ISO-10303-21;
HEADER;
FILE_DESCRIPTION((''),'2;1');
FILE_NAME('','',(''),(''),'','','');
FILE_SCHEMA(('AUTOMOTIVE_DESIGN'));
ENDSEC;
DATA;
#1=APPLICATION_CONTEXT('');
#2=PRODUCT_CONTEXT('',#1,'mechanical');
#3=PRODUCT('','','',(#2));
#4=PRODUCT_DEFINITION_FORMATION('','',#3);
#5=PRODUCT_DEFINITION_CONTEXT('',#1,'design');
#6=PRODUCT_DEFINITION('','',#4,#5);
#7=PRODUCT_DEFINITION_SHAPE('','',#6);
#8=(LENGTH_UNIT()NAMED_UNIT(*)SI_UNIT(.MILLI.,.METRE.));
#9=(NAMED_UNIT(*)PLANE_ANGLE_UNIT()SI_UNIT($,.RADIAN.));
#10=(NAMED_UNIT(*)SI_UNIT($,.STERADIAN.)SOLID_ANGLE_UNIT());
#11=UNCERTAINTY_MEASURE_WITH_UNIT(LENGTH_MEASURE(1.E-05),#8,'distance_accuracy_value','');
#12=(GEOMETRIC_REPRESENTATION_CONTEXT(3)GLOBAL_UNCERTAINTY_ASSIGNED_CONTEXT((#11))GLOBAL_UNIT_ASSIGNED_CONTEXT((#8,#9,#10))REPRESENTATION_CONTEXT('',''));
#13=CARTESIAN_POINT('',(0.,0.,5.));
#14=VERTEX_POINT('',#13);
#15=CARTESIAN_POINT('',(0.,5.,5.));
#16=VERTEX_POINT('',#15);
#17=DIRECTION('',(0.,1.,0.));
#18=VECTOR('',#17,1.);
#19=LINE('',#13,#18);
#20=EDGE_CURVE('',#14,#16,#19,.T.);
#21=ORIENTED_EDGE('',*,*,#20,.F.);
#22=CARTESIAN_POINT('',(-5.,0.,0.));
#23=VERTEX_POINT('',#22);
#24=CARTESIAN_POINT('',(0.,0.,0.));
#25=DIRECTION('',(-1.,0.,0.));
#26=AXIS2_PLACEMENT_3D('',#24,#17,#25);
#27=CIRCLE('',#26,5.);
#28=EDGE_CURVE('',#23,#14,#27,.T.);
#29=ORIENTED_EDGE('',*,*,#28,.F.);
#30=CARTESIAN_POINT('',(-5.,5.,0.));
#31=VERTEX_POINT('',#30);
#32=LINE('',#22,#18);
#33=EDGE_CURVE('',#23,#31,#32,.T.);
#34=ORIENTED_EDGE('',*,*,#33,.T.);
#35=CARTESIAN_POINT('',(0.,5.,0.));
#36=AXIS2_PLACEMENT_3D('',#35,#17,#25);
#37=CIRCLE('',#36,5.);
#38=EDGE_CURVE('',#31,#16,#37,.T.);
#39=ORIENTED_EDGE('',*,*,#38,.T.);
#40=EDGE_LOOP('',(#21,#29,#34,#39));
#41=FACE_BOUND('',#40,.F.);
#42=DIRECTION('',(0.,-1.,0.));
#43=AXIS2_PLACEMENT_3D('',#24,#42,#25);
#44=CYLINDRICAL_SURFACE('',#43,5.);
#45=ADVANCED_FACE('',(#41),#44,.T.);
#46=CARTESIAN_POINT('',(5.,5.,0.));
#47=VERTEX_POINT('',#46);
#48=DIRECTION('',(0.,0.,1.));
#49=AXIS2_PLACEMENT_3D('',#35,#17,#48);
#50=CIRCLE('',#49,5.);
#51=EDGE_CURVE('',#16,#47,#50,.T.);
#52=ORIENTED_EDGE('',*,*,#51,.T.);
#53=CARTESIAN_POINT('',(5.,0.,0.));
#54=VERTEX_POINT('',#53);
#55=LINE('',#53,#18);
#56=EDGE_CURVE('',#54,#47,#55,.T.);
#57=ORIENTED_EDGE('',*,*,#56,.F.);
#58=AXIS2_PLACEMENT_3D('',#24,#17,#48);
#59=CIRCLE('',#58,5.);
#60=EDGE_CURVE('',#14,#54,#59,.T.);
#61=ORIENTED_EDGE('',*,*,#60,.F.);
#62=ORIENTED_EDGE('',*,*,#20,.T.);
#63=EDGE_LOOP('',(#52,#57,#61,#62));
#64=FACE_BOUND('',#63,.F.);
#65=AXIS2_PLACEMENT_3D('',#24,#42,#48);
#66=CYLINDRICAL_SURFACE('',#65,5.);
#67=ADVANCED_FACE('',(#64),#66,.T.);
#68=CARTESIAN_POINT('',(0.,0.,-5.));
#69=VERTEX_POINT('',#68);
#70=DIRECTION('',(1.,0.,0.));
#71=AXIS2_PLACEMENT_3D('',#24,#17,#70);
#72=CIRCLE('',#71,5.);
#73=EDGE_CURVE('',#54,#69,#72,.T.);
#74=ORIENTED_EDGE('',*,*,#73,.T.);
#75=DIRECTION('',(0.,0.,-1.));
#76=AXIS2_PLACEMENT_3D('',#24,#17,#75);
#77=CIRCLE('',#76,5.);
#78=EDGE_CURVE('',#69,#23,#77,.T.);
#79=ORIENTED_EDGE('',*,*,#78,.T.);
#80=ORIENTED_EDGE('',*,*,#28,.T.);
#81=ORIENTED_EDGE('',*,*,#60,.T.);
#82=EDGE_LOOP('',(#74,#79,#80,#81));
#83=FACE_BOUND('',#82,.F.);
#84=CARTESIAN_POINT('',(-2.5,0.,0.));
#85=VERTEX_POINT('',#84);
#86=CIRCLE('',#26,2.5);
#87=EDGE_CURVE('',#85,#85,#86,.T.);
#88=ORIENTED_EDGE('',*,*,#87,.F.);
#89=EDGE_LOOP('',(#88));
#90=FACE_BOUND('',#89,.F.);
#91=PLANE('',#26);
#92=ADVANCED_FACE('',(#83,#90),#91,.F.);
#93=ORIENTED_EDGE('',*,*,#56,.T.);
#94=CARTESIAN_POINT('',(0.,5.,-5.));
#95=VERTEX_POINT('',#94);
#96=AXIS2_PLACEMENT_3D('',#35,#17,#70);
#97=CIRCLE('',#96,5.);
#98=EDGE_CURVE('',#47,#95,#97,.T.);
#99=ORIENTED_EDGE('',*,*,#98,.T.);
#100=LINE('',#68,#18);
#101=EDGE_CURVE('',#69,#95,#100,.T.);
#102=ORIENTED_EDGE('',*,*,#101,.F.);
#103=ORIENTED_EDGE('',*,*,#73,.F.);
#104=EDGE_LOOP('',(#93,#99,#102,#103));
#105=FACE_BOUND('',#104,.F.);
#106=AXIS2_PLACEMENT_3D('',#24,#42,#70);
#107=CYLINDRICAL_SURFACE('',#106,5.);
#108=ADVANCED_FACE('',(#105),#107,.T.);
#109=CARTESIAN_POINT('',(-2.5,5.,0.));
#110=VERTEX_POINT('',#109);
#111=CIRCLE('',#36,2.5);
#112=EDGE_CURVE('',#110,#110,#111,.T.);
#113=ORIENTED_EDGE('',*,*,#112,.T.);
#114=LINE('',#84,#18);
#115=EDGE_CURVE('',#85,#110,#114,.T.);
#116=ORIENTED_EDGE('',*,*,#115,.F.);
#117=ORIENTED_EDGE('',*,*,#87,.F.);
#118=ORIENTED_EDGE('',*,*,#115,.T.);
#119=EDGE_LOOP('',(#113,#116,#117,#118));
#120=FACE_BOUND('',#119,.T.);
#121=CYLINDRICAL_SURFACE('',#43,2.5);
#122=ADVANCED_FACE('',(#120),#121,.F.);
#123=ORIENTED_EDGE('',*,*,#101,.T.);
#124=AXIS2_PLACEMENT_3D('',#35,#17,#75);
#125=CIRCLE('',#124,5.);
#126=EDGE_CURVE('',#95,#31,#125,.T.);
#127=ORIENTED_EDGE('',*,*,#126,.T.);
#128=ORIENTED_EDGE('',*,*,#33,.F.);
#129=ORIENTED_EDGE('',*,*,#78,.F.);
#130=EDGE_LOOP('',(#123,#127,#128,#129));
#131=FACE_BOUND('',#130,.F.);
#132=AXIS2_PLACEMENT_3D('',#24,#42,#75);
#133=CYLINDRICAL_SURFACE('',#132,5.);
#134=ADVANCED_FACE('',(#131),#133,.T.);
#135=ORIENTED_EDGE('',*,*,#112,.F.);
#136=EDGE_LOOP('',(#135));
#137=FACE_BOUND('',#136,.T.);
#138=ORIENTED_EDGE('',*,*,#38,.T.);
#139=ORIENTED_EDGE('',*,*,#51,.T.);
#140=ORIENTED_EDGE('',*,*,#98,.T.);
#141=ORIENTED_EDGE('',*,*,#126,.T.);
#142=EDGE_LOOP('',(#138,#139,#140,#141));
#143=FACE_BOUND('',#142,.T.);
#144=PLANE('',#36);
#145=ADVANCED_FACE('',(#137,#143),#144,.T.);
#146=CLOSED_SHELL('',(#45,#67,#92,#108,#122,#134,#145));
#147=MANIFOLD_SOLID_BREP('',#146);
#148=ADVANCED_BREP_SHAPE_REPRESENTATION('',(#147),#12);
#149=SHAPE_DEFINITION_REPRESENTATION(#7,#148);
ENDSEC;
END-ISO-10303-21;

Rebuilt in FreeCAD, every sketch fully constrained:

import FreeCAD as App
import Part
import Sketcher

V = App.Vector
Q = App.Units.Quantity

doc = App.newDocument("Part")
body = doc.addObject("PartDesign::Body", "Body")

# Sketch on XZ plane
sketch1 = doc.addObject("Sketcher::SketchObject", "Sketch")
body.addObject(sketch1)
sketch1.AttachmentSupport = (doc.XZ_Plane, [""])
sketch1.MapMode = "FlatFace"
sketch1.addGeometry([
    Part.Circle(V(0, 0, 0), V(0, 0, 1), 5),
    Part.Circle(V(0, 0, 0), V(0, 0, 1), 2.5),
], False)
sketch1.addConstraint([
    Sketcher.Constraint("Coincident", 0, 3, -1, 1),
    Sketcher.Constraint("Coincident", 1, 3, -1, 1),
    Sketcher.Constraint("Diameter", 0, Q("10 mm")),
    Sketcher.Constraint("Diameter", 1, Q("5 mm")),
])
pad1 = doc.addObject("PartDesign::Pad", "Pad")
body.addObject(pad1)
pad1.Profile = sketch1
pad1.Length = 5
pad1.Reversed = True

doc.recompute()
